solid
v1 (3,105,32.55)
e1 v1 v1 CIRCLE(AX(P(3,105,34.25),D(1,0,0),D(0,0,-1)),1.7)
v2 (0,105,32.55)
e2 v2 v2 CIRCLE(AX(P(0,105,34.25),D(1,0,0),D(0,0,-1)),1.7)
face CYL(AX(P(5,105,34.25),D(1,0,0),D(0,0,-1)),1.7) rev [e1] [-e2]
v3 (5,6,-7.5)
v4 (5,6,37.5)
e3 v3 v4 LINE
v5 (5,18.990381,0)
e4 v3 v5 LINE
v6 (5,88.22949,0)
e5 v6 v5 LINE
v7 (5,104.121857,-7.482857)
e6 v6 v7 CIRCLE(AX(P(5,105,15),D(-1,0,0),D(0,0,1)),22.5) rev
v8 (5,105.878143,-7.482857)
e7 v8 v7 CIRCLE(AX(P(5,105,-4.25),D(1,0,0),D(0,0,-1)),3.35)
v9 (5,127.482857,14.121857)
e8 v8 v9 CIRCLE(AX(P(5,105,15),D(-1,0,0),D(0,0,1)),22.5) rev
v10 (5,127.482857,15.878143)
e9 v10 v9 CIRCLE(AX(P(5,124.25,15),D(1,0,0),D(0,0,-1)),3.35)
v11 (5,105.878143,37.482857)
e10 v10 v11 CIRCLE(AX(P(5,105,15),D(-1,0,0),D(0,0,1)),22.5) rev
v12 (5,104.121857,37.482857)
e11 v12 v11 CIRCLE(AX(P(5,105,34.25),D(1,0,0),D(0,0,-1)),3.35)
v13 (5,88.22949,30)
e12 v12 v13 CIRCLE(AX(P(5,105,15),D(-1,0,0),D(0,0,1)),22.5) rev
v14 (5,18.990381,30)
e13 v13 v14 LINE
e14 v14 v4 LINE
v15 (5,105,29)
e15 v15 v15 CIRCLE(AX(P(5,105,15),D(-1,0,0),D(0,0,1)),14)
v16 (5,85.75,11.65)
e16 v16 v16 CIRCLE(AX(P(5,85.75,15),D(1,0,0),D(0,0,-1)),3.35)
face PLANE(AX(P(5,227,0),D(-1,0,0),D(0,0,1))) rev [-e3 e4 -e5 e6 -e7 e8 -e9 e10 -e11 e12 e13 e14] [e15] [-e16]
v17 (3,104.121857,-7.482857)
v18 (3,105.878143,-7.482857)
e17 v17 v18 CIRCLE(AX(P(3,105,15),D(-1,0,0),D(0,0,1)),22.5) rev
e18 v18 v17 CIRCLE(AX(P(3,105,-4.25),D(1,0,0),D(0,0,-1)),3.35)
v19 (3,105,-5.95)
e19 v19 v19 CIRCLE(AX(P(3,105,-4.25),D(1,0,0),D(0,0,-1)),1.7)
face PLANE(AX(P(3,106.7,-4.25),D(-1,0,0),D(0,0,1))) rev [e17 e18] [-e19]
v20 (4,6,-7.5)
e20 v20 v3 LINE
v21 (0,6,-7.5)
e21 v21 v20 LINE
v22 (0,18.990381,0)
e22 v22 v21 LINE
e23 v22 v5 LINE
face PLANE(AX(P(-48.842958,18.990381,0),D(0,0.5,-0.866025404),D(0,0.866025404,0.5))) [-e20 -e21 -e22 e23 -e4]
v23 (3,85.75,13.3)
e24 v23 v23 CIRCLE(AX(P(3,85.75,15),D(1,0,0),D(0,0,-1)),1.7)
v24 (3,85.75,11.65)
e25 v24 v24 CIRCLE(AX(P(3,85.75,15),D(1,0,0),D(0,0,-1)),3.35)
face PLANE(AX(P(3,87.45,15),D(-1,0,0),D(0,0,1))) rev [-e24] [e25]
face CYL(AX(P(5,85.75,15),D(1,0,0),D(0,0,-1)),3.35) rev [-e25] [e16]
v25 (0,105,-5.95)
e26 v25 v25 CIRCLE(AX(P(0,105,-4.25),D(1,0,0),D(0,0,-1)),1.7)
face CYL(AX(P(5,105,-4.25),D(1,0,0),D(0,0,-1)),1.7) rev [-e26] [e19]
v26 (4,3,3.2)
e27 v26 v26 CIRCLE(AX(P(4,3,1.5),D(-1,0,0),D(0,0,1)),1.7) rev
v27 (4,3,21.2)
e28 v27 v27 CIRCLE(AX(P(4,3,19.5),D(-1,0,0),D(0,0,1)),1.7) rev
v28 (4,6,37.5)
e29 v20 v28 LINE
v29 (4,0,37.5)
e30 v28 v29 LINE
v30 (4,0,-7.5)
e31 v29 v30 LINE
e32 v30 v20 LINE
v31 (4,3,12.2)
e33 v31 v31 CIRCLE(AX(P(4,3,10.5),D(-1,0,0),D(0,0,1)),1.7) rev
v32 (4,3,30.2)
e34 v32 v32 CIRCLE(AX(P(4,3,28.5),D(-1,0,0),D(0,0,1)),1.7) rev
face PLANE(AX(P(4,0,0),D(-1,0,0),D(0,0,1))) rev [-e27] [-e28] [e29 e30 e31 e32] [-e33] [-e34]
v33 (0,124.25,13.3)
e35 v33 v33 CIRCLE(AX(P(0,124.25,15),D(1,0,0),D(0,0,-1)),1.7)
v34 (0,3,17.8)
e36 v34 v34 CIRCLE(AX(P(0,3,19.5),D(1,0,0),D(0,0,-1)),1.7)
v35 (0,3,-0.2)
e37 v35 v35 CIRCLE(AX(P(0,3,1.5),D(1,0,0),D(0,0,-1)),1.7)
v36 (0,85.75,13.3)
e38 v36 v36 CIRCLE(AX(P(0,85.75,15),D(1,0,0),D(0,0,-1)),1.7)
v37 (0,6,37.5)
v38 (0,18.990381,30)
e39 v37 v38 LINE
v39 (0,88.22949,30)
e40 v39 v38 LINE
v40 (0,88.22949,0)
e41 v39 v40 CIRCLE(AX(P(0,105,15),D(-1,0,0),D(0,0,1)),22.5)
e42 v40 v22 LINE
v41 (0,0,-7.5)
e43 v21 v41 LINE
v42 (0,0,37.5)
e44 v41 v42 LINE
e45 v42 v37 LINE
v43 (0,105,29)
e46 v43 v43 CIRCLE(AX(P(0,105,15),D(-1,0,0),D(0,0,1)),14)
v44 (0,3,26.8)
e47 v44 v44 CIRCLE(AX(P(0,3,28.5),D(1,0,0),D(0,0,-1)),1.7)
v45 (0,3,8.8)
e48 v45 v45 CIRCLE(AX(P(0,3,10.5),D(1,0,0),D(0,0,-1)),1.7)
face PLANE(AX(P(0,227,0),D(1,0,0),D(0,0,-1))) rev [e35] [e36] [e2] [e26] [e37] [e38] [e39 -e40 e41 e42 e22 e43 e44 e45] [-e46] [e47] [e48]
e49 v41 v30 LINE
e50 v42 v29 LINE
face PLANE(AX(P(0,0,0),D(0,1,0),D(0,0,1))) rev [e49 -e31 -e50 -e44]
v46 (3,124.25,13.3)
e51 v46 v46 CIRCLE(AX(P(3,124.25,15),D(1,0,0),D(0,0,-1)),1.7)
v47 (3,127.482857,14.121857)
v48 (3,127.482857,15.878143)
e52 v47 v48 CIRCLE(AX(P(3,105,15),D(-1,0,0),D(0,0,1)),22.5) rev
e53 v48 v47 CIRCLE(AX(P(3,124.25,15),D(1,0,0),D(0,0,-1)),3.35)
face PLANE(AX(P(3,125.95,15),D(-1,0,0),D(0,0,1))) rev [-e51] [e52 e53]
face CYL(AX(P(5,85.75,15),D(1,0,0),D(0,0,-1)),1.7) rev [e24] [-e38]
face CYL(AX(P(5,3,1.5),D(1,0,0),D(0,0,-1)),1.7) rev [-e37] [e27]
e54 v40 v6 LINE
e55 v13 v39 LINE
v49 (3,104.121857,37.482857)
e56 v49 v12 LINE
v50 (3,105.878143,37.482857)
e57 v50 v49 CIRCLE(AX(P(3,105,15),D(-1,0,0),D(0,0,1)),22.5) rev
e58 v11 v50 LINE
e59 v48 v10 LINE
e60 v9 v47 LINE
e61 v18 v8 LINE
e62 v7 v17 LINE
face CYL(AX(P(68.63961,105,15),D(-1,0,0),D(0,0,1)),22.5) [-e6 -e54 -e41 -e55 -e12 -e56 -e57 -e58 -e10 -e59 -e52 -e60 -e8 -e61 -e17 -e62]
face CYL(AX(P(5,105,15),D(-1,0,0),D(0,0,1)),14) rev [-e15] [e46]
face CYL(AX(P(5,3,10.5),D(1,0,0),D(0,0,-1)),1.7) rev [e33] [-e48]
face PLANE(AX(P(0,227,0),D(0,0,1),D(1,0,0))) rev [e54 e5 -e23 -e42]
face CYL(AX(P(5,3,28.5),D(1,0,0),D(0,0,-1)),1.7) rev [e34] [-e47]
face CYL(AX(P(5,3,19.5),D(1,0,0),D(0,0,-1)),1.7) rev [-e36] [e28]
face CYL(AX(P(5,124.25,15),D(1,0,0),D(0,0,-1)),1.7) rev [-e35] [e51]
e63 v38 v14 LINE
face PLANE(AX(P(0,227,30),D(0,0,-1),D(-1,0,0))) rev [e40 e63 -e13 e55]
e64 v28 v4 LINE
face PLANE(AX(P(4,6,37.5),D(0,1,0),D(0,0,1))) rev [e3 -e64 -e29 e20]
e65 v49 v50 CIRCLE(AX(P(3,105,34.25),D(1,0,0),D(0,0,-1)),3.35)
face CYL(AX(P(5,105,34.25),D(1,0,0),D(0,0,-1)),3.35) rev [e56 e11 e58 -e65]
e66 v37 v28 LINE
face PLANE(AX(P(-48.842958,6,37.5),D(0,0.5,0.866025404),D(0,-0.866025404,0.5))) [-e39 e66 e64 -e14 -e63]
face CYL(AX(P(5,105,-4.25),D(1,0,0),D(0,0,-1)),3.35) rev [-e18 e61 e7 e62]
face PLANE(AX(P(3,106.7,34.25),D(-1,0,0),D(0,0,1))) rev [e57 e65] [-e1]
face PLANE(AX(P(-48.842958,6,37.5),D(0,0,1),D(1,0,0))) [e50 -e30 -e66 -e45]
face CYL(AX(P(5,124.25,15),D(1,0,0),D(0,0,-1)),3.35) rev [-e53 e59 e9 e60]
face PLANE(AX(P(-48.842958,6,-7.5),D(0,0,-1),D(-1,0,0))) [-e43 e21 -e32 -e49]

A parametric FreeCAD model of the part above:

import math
import FreeCAD as App
import Part
import Sketcher
Q = App.Units.Quantity

doc = App.newDocument("Part")
params = doc.addObject("Spreadsheet::Sheet", "Params")
for row, (alias, value) in enumerate([
    ("sketch1_width", "5 mm"),
    ("sketch1_height", "30 mm"),
    ("pad1_length", "227 mm"),
    ("sketch2_diameter", "45 mm"),
    ("pad2_length", "5 mm"),
    ("sketch3_diameter", "28 mm"),
    ("sketch4_diameter", "3.4 mm"),
    ("hole_diameter", "3.4 mm"),
    ("hole_cbore_diameter", "6.7 mm"),
    ("hole_cbore_depth", "2 mm"),
    ("sketch5_width", "6 mm"),
    ("sketch5_height", "30 mm"),
    ("sketch5_height2", "45 mm"),
    ("pad3_length", "5 mm"),
    ("sketch6_diameter", "3.4 mm"),
    ("hole2_diameter", "3.4 mm"),
    ("sketch7_width", "6 mm"),
    ("sketch7_height", "45 mm"),
    ("pocket2_length", "1 mm"),
    ("sketch8_radius", "22.5 mm"),
    ("sketch8_height", "30 mm"),
    ("pocket3_length", "5 mm"),
], start=1):
    params.set(f"A{row}", alias)
    params.set(f"B{row}", "=" + value)
    params.setAlias(f"B{row}", alias)

body = doc.addObject("PartDesign::Body", "Body")

# Sketch on XZ plane
sketch1 = body.newObject("Sketcher::SketchObject", "Sketch")
sketch1.AttachmentSupport = (doc.getObject("XZ_Plane"), [""])
sketch1.MapMode = "FlatFace"
sketch1.addGeometry(Part.LineSegment(App.Vector(0, 0, 0), App.Vector(0, 30, 0)), False)
sketch1.addGeometry(Part.LineSegment(App.Vector(0, 30, 0), App.Vector(5, 30, 0)), False)
sketch1.addGeometry(Part.LineSegment(App.Vector(5, 30, 0), App.Vector(5, 0, 0)), False)
sketch1.addGeometry(Part.LineSegment(App.Vector(5, 0, 0), App.Vector(0, 0, 0)), False)
sketch1.addConstraint(Sketcher.Constraint("Coincident", 0, 2, 1, 1))
sketch1.addConstraint(Sketcher.Constraint("Coincident", 1, 2, 2, 1))
sketch1.addConstraint(Sketcher.Constraint("Coincident", 2, 2, 3, 1))
sketch1.addConstraint(Sketcher.Constraint("Coincident", 3, 2, 0, 1))
sketch1.addConstraint(Sketcher.Constraint("Vertical", 0))
sketch1.addConstraint(Sketcher.Constraint("Horizontal", 1))
sketch1.addConstraint(Sketcher.Constraint("Vertical", 2))
sketch1.addConstraint(Sketcher.Constraint("Horizontal", 3))
sketch1.addConstraint(Sketcher.Constraint("Coincident", 3, 2, -1, 1))
sketch1.addConstraint(Sketcher.Constraint("DistanceX", 1, 1, 1, 2, Q("5 mm")))
sketch1.addConstraint(Sketcher.Constraint("DistanceY", 0, 1, 0, 2, Q("30 mm")))
sketch1.setExpression("Constraints[9]", "Params.sketch1_width")
sketch1.setExpression("Constraints[10]", "Params.sketch1_height")
pad1 = body.newObject("PartDesign::Pad", "Pad")
pad1.Profile = sketch1
pad1.setExpression("Length", "Params.pad1_length")
pad1.Reversed = True

# Sketch on YZ plane
sketch2 = body.newObject("Sketcher::SketchObject", "Sketch001")
sketch2.AttachmentSupport = (doc.getObject("YZ_Plane"), [""])
sketch2.MapMode = "FlatFace"
sketch2.addGeometry(Part.Circle(App.Vector(105, 15, 0), App.Vector(0, 0, 1), 22), False)
sketch2.addConstraint(Sketcher.Constraint("Diameter", 0, Q("45 mm")))
sketch2.addConstraint(Sketcher.Constraint("DistanceX", -1, 1, 0, 3, Q("105 mm")))
sketch2.addConstraint(Sketcher.Constraint("DistanceY", -1, 1, 0, 3, Q("15 mm")))
sketch2.setExpression("Constraints[0]", "Params.sketch2_diameter")
pad2 = body.newObject("PartDesign::Pad", "Pad001")
pad2.Profile = sketch2
pad2.setExpression("Length", "Params.pad2_length")

# Sketch on YZ plane
sketch3 = body.newObject("Sketcher::SketchObject", "Sketch002")
sketch3.AttachmentSupport = (doc.getObject("YZ_Plane"), [""])
sketch3.MapMode = "FlatFace"
sketch3.addGeometry(Part.Circle(App.Vector(105, 15, 0), App.Vector(0, 0, 1), 14), False)
sketch3.addConstraint(Sketcher.Constraint("Diameter", 0, Q("28 mm")))
sketch3.addConstraint(Sketcher.Constraint("DistanceX", -1, 1, 0, 3, Q("105 mm")))
sketch3.addConstraint(Sketcher.Constraint("DistanceY", -1, 1, 0, 3, Q("15 mm")))
sketch3.setExpression("Constraints[0]", "Params.sketch3_diameter")
pocket1 = body.newObject("PartDesign::Pocket", "Pocket")
pocket1.Profile = sketch3
pocket1.Type = "ThroughAll"
pocket1.Reversed = True

# Sketch on YZ plane
sketch4 = body.newObject("Sketcher::SketchObject", "Sketch003")
sketch4.AttachmentSupport = (doc.getObject("YZ_Plane"), [""])
sketch4.MapMode = "FlatFace"
sketch4.AttachmentOffset = App.Placement(App.Vector(0, 0, 5), App.Rotation())
sketch4.addGeometry(Part.Circle(App.Vector(124.2, 15, 0), App.Vector(0, 0, 1), 1.7), False)
sketch4.addGeometry(Part.Circle(App.Vector(105, -4.2, 0), App.Vector(0, 0, 1), 1.7), False)
sketch4.addGeometry(Part.Circle(App.Vector(85.8, 15, 0), App.Vector(0, 0, 1), 1.7), False)
sketch4.addGeometry(Part.Circle(App.Vector(105, 34.2, 0), App.Vector(0, 0, 1), 1.7), False)
sketch4.addConstraint(Sketcher.Constraint("Equal", 0, 1))
sketch4.addConstraint(Sketcher.Constraint("Equal", 1, 2))
sketch4.addConstraint(Sketcher.Constraint("Equal", 2, 3))
sketch4.addConstraint(Sketcher.Constraint("Horizontal", 0, 3, 2, 3))
sketch4.addConstraint(Sketcher.Constraint("Vertical", 1, 3, 3, 3))
sketch4.addConstraint(Sketcher.Constraint("Diameter", 0, Q("3.4 mm")))
sketch4.addConstraint(Sketcher.Constraint("DistanceY", -1, 1, 0, 3, Q("15 mm")))
sketch4.addConstraint(Sketcher.Constraint("DistanceX", -1, 1, 1, 3, Q("105 mm")))
sketch4.addConstraint(Sketcher.Constraint("DistanceX", 2, 3, 0, 3, Q("38.5 mm")))
sketch4.addConstraint(Sketcher.Constraint("DistanceY", 1, 3, 3, 3, Q("38.5 mm")))
sketch4.addConstraint(Sketcher.Constraint("DistanceX", -1, 1, 0, 3, Q("124.25 mm")))
sketch4.addConstraint(Sketcher.Constraint("DistanceY", 1, 3, -1, 1, Q("4.25 mm")))
sketch4.setExpression("Constraints[5]", "Params.sketch4_diameter")
doc.recompute()
hole = body.newObject("PartDesign::Hole", "Hole")
hole.Profile = sketch4
hole.ThreadType = "None"
hole.setExpression("Diameter", "Params.hole_diameter")
hole.DepthType = "ThroughAll"
hole.HoleCutType = "Counterbore"
hole.setExpression("HoleCutDiameter", "Params.hole_cbore_diameter")
hole.setExpression("HoleCutDepth", "Params.hole_cbore_depth")

# Sketch on YZ plane
sketch5 = body.newObject("Sketcher::SketchObject", "Sketch004")
sketch5.AttachmentSupport = (doc.getObject("YZ_Plane"), [""])
sketch5.MapMode = "FlatFace"
sketch5.AttachmentOffset = App.Placement(App.Vector(0, 0, 5), App.Rotation())
sketch5.addGeometry(Part.LineSegment(App.Vector(6, -8, 0), App.Vector(19, 0, 0)), False)
sketch5.addGeometry(Part.LineSegment(App.Vector(19, 0, 0), App.Vector(19, 30, 0)), False)
sketch5.addGeometry(Part.LineSegment(App.Vector(19, 30, 0), App.Vector(6, 38, 0)), False)
sketch5.addGeometry(Part.LineSegment(App.Vector(6, 38, 0), App.Vector(0, 38, 0)), False)
sketch5.addGeometry(Part.LineSegment(App.Vector(0, 38, 0), App.Vector(0, -8, 0)), False)
sketch5.addGeometry(Part.LineSegment(App.Vector(0, -8, 0), App.Vector(6, -8, 0)), False)
sketch5.addConstraint(Sketcher.Constraint("Coincident", 0, 2, 1, 1))
sketch5.addConstraint(Sketcher.Constraint("Coincident", 1, 2, 2, 1))
sketch5.addConstraint(Sketcher.Constraint("Coincident", 2, 2, 3, 1))
sketch5.addConstraint(Sketcher.Constraint("Coincident", 3, 2, 4, 1))
sketch5.addConstraint(Sketcher.Constraint("Coincident", 4, 2, 5, 1))
sketch5.addConstraint(Sketcher.Constraint("Coincident", 5, 2, 0, 1))
sketch5.addConstraint(Sketcher.Constraint("Vertical", 1))
sketch5.addConstraint(Sketcher.Constraint("Horizontal", 3))
sketch5.addConstraint(Sketcher.Constraint("Vertical", 4))
sketch5.addConstraint(Sketcher.Constraint("Horizontal", 5))
sketch5.addConstraint(Sketcher.Constraint("PointOnObject", 0, 2, -1))
sketch5.addConstraint(Sketcher.Constraint("PointOnObject", 3, 2, -2))
sketch5.addConstraint(Sketcher.Constraint("Vertical", 2, 2, 5, 2))
sketch5.addConstraint(Sketcher.Constraint("Equal", 0, 2))
sketch5.addConstraint(Sketcher.Constraint("DistanceX", 3, 2, 3, 1, Q("6 mm")))
sketch5.addConstraint(Sketcher.Constraint("DistanceY", 1, 1, 1, 2, Q("30 mm")))
sketch5.addConstraint(Sketcher.Constraint("DistanceY", 4, 2, 4, 1, Q("45 mm")))
sketch5.addConstraint(Sketcher.Constraint("Angle", 0, Q("30 deg")))
sketch5.setExpression("Constraints[14]", "Params.sketch5_width")
sketch5.setExpression("Constraints[15]", "Params.sketch5_height")
sketch5.setExpression("Constraints[16]", "Params.sketch5_height2")
pad3 = body.newObject("PartDesign::Pad", "Pad002")
pad3.Profile = sketch5
pad3.setExpression("Length", "Params.pad3_length")
pad3.Reversed = True

# Sketch on YZ plane
sketch6 = body.newObject("Sketcher::SketchObject", "Sketch005")
sketch6.AttachmentSupport = (doc.getObject("YZ_Plane"), [""])
sketch6.MapMode = "FlatFace"
sketch6.AttachmentOffset = App.Placement(App.Vector(0, 0, 5), App.Rotation())
sketch6.addGeometry(Part.Circle(App.Vector(3, 28.5, 0), App.Vector(0, 0, 1), 1.7), False)
sketch6.addGeometry(Part.Circle(App.Vector(3, 19.5, 0), App.Vector(0, 0, 1), 1.7), False)
sketch6.addGeometry(Part.Circle(App.Vector(3, 10.5, 0), App.Vector(0, 0, 1), 1.7), False)
sketch6.addGeometry(Part.Circle(App.Vector(3, 1.5, 0), App.Vector(0, 0, 1), 1.7), False)
sketch6.addConstraint(Sketcher.Constraint("Equal", 0, 1))
sketch6.addConstraint(Sketcher.Constraint("Equal", 1, 2))
sketch6.addConstraint(Sketcher.Constraint("Equal", 2, 3))
sketch6.addConstraint(Sketcher.Constraint("Vertical", 0, 3, 1, 3))
sketch6.addConstraint(Sketcher.Constraint("Vertical", 1, 3, 2, 3))
sketch6.addConstraint(Sketcher.Constraint("Vertical", 2, 3, 3, 3))
sketch6.addConstraint(Sketcher.Constraint("Diameter", 0, Q("3.4 mm")))
sketch6.addConstraint(Sketcher.Constraint("DistanceX", -1, 1, 0, 3, Q("3 mm")))
sketch6.addConstraint(Sketcher.Constraint("DistanceY", 1, 3, 0, 3, Q("9 mm")))
sketch6.addConstraint(Sketcher.Constraint("DistanceY", 2, 3, 1, 3, Q("9 mm")))
sketch6.addConstraint(Sketcher.Constraint("DistanceY", 3, 3, 2, 3, Q("9 mm")))
sketch6.addConstraint(Sketcher.Constraint("DistanceY", -1, 1, 0, 3, Q("28.5 mm")))
sketch6.setExpression("Constraints[6]", "Params.sketch6_diameter")
doc.recompute()
hole2 = body.newObject("PartDesign::Hole", "Hole001")
hole2.Profile = sketch6
hole2.ThreadType = "None"
hole2.setExpression("Diameter", "Params.hole2_diameter")
hole2.DepthType = "ThroughAll"

# Sketch on YZ plane
sketch7 = body.newObject("Sketcher::SketchObject", "Sketch006")
sketch7.AttachmentSupport = (doc.getObject("YZ_Plane"), [""])
sketch7.MapMode = "FlatFace"
sketch7.AttachmentOffset = App.Placement(App.Vector(0, 0, 5), App.Rotation())
sketch7.addGeometry(Part.LineSegment(App.Vector(6, 38, 0), App.Vector(0, 38, 0)), False)
sketch7.addGeometry(Part.LineSegment(App.Vector(0, 38, 0), App.Vector(0, -8, 0)), False)
sketch7.addGeometry(Part.LineSegment(App.Vector(0, -8, 0), App.Vector(6, -8, 0)), False)
sketch7.addGeometry(Part.LineSegment(App.Vector(6, -8, 0), App.Vector(6, 38, 0)), False)
sketch7.addConstraint(Sketcher.Constraint("Coincident", 0, 2, 1, 1))
sketch7.addConstraint(Sketcher.Constraint("Coincident", 1, 2, 2, 1))
sketch7.addConstraint(Sketcher.Constraint("Coincident", 2, 2, 3, 1))
sketch7.addConstraint(Sketcher.Constraint("Coincident", 3, 2, 0, 1))
sketch7.addConstraint(Sketcher.Constraint("Horizontal", 0))
sketch7.addConstraint(Sketcher.Constraint("Vertical", 1))
sketch7.addConstraint(Sketcher.Constraint("Horizontal", 2))
sketch7.addConstraint(Sketcher.Constraint("Vertical", 3))
sketch7.addConstraint(Sketcher.Constraint("PointOnObject", 0, 2, -2))
sketch7.addConstraint(Sketcher.Constraint("DistanceX", 0, 2, 0, 1, Q("6 mm")))
sketch7.addConstraint(Sketcher.Constraint("DistanceY", 1, 2, 1, 1, Q("45 mm")))
sketch7.addConstraint(Sketcher.Constraint("DistanceY", -1, 1, 0, 2, Q("37.5 mm")))
sketch7.setExpression("Constraints[9]", "Params.sketch7_width")
sketch7.setExpression("Constraints[10]", "Params.sketch7_height")
pocket2 = body.newObject("PartDesign::Pocket", "Pocket001")
pocket2.Profile = sketch7
pocket2.setExpression("Length", "Params.pocket2_length")

# Sketch on YZ plane
sketch8 = body.newObject("Sketcher::SketchObject", "Sketch007")
sketch8.AttachmentSupport = (doc.getObject("YZ_Plane"), [""])
sketch8.MapMode = "FlatFace"
sketch8.addGeometry(Part.LineSegment(App.Vector(227, 0, 0), App.Vector(227, 30, 0)), False)
sketch8.addGeometry(Part.LineSegment(App.Vector(227, 30, 0), App.Vector(122, 30, 0)), False)
sketch8.addGeometry(Part.ArcOfCircle(Part.Circle(App.Vector(105, 15, 0), App.Vector(0, 0, 1), 22), math.radians(-42), math.radians(42)), False)
sketch8.addGeometry(Part.LineSegment(App.Vector(122, 0, 0), App.Vector(227, 0, 0)), False)
sketch8.addConstraint(Sketcher.Constraint("Coincident", 0, 2, 1, 1))
sketch8.addConstraint(Sketcher.Constraint("Coincident", 1, 2, 2, 2))
sketch8.addConstraint(Sketcher.Constraint("Coincident", 2, 1, 3, 1))
sketch8.addConstraint(Sketcher.Constraint("Coincident", 3, 2, 0, 1))
sketch8.addConstraint(Sketcher.Constraint("Vertical", 0))
sketch8.addConstraint(Sketcher.Constraint("Horizontal", 1))
sketch8.addConstraint(Sketcher.Constraint("Horizontal", 3))
sketch8.addConstraint(Sketcher.Constraint("PointOnObject", 2, 1, -1))
sketch8.addConstraint(Sketcher.Constraint("Vertical", 1, 2, 2, 1))
sketch8.addConstraint(Sketcher.Constraint("Radius", 2, Q("22.5 mm")))
sketch8.addConstraint(Sketcher.Constraint("DistanceY", 0, 1, 0, 2, Q("30 mm")))
sketch8.addConstraint(Sketcher.Constraint("DistanceX", -1, 1, 2, 3, Q("105 mm")))
sketch8.addConstraint(Sketcher.Constraint("DistanceX", -1, 1, 0, 2, Q("227 mm")))
sketch8.setExpression("Constraints[9]", "Params.sketch8_radius")
sketch8.setExpression("Constraints[10]", "Params.sketch8_height")
pocket3 = body.newObject("PartDesign::Pocket", "Pocket002")
pocket3.Profile = sketch8
pocket3.setExpression("Length", "Params.pocket3_length")
pocket3.Reversed = True

doc.recompute()
